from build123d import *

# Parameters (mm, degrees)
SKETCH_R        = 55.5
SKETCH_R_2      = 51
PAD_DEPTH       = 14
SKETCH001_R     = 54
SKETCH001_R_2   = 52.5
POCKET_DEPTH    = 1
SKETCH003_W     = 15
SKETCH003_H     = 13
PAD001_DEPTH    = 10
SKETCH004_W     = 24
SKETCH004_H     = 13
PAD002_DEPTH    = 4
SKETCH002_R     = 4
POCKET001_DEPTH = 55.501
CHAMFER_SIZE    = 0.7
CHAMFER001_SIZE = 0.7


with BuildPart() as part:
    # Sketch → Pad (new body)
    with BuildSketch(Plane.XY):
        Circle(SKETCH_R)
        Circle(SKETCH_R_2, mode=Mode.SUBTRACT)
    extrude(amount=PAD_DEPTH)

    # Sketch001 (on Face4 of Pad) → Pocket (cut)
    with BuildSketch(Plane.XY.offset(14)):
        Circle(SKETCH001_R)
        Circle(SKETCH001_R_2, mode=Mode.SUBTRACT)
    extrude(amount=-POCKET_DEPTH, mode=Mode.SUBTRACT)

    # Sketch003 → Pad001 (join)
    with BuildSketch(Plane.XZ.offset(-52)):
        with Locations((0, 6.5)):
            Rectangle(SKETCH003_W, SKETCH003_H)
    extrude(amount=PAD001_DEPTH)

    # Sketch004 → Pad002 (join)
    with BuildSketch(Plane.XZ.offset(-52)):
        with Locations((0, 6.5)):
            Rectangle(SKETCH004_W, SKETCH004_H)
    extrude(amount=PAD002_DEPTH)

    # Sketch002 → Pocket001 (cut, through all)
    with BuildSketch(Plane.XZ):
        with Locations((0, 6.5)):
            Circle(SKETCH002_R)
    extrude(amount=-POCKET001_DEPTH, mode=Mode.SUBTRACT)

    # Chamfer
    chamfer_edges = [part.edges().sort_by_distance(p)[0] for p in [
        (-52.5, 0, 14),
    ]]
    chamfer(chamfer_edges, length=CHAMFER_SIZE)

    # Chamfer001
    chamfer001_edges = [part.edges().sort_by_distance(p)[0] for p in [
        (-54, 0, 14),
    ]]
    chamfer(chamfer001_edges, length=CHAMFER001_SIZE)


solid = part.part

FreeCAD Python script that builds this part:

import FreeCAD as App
import Part
import Sketcher
Q = App.Units.Quantity


def edges_at(feature, points):
    """Names of the edges that pass closest to the given points."""
    edges = feature.Shape.Edges
    near = lambda p: min(range(len(edges)), key=lambda i: edges[i].distToShape(Part.Vertex(*p))[0])
    return sorted({f"Edge{near(p) + 1}" for p in points})

doc = App.newDocument("Part")
body = doc.addObject("PartDesign::Body", "Body")

# Sketch on XY plane
sketch1 = body.newObject("Sketcher::SketchObject", "Sketch")
sketch1.AttachmentSupport = (doc.getObject("XY_Plane"), [""])
sketch1.MapMode = "FlatFace"
sketch1.addGeometry(Part.Circle(App.Vector(0, 0, 0), App.Vector(0, 0, 1), 55.5), False)
sketch1.addGeometry(Part.Circle(App.Vector(0, 0, 0), App.Vector(0, 0, 1), 51), False)
sketch1.addConstraint(Sketcher.Constraint("Coincident", 0, 3, -1, 1))
sketch1.addConstraint(Sketcher.Constraint("Coincident", 1, 3, -1, 1))
sketch1.addConstraint(Sketcher.Constraint("Diameter", 0, Q("111 mm")))
sketch1.addConstraint(Sketcher.Constraint("Diameter", 1, Q("102 mm")))
pad1 = body.newObject("PartDesign::Pad", "Pad")
pad1.Profile = sketch1
pad1.Length = 14

# Sketch on XY plane
sketch2 = body.newObject("Sketcher::SketchObject", "Sketch001")
sketch2.AttachmentSupport = (doc.getObject("XY_Plane"), [""])
sketch2.MapMode = "FlatFace"
sketch2.AttachmentOffset = App.Placement(App.Vector(0, 0, 14), App.Rotation())
sketch2.addGeometry(Part.Circle(App.Vector(0, 0, 0), App.Vector(0, 0, 1), 54), False)
sketch2.addGeometry(Part.Circle(App.Vector(0, 0, 0), App.Vector(0, 0, 1), 52.5), False)
sketch2.addConstraint(Sketcher.Constraint("Coincident", 0, 3, -1, 1))
sketch2.addConstraint(Sketcher.Constraint("Coincident", 1, 3, -1, 1))
sketch2.addConstraint(Sketcher.Constraint("Diameter", 0, Q("108 mm")))
sketch2.addConstraint(Sketcher.Constraint("Diameter", 1, Q("105 mm")))
pocket1 = body.newObject("PartDesign::Pocket", "Pocket")
pocket1.Profile = sketch2
pocket1.Length = 1

# Sketch on XZ plane
sketch3 = body.newObject("Sketcher::SketchObject", "Sketch002")
sketch3.AttachmentSupport = (doc.getObject("XZ_Plane"), [""])
sketch3.MapMode = "FlatFace"
sketch3.AttachmentOffset = App.Placement(App.Vector(0, 0, -52), App.Rotation())
sketch3.addGeometry(Part.LineSegment(App.Vector(-7.5, 13, 0), App.Vector(-7.5, 0, 0)), False)
sketch3.addGeometry(Part.LineSegment(App.Vector(-7.5, 0, 0), App.Vector(7.5, 0, 0)), False)
sketch3.addGeometry(Part.LineSegment(App.Vector(7.5, 0, 0), App.Vector(7.5, 13, 0)), False)
sketch3.addGeometry(Part.LineSegment(App.Vector(7.5, 13, 0), App.Vector(-7.5, 13, 0)), False)
sketch3.addConstraint(Sketcher.Constraint("Coincident", 0, 2, 1, 1))
sketch3.addConstraint(Sketcher.Constraint("Coincident", 1, 2, 2, 1))
sketch3.addConstraint(Sketcher.Constraint("Coincident", 2, 2, 3, 1))
sketch3.addConstraint(Sketcher.Constraint("Coincident", 3, 2, 0, 1))
sketch3.addConstraint(Sketcher.Constraint("Vertical", 0))
sketch3.addConstraint(Sketcher.Constraint("Horizontal", 1))
sketch3.addConstraint(Sketcher.Constraint("Vertical", 2))
sketch3.addConstraint(Sketcher.Constraint("Horizontal", 3))
sketch3.addConstraint(Sketcher.Constraint("Symmetric", 0, 2, 1, 2, -1, 1))
sketch3.addConstraint(Sketcher.Constraint("DistanceX", 1, 1, 1, 2, Q("15 mm")))
sketch3.addConstraint(Sketcher.Constraint("DistanceY", 0, 2, 0, 1, Q("13 mm")))
pad2 = body.newObject("PartDesign::Pad", "Pad001")
pad2.Profile = sketch3
pad2.Length = 10

# Sketch on XZ plane
sketch4 = body.newObject("Sketcher::SketchObject", "Sketch003")
sketch4.AttachmentSupport = (doc.getObject("XZ_Plane"), [""])
sketch4.MapMode = "FlatFace"
sketch4.AttachmentOffset = App.Placement(App.Vector(0, 0, -52), App.Rotation())
sketch4.addGeometry(Part.LineSegment(App.Vector(-12, 13, 0), App.Vector(-12, 0, 0)), False)
sketch4.addGeometry(Part.LineSegment(App.Vector(-12, 0, 0), App.Vector(12, 0, 0)), False)
sketch4.addGeometry(Part.LineSegment(App.Vector(12, 0, 0), App.Vector(12, 13, 0)), False)
sketch4.addGeometry(Part.LineSegment(App.Vector(12, 13, 0), App.Vector(-12, 13, 0)), False)
sketch4.addConstraint(Sketcher.Constraint("Coincident", 0, 2, 1, 1))
sketch4.addConstraint(Sketcher.Constraint("Coincident", 1, 2, 2, 1))
sketch4.addConstraint(Sketcher.Constraint("Coincident", 2, 2, 3, 1))
sketch4.addConstraint(Sketcher.Constraint("Coincident", 3, 2, 0, 1))
sketch4.addConstraint(Sketcher.Constraint("Vertical", 0))
sketch4.addConstraint(Sketcher.Constraint("Horizontal", 1))
sketch4.addConstraint(Sketcher.Constraint("Vertical", 2))
sketch4.addConstraint(Sketcher.Constraint("Horizontal", 3))
sketch4.addConstraint(Sketcher.Constraint("Symmetric", 0, 2, 1, 2, -1, 1))
sketch4.addConstraint(Sketcher.Constraint("DistanceX", 1, 1, 1, 2, Q("24 mm")))
sketch4.addConstraint(Sketcher.Constraint("DistanceY", 0, 2, 0, 1, Q("13 mm")))
pad3 = body.newObject("PartDesign::Pad", "Pad002")
pad3.Profile = sketch4
pad3.Length = 4

# Sketch on XZ plane
sketch5 = body.newObject("Sketcher::SketchObject", "Sketch004")
sketch5.AttachmentSupport = (doc.getObject("XZ_Plane"), [""])
sketch5.MapMode = "FlatFace"
sketch5.addGeometry(Part.Circle(App.Vector(0, 6.5, 0), App.Vector(0, 0, 1), 4), False)
sketch5.addConstraint(Sketcher.Constraint("PointOnObject", 0, 3, -2))
sketch5.addConstraint(Sketcher.Constraint("Diameter", 0, Q("8 mm")))
sketch5.addConstraint(Sketcher.Constraint("DistanceY", -1, 1, 0, 3, Q("6.5 mm")))
pocket2 = body.newObject("PartDesign::Pocket", "Pocket001")
pocket2.Profile = sketch5
pocket2.Type = "ThroughAll"
doc.recompute()

chamfer = body.newObject("PartDesign::Chamfer", "Chamfer")
chamfer.Base = (pocket2, edges_at(pocket2, [(-52.5, 0, 14)]))
chamfer.Size = 0.7
doc.recompute()

chamfer2 = body.newObject("PartDesign::Chamfer", "Chamfer001")
chamfer2.Base = (chamfer, edges_at(chamfer, [(-54, 0, 14)]))
chamfer2.Size = 0.7

doc.recompute()
